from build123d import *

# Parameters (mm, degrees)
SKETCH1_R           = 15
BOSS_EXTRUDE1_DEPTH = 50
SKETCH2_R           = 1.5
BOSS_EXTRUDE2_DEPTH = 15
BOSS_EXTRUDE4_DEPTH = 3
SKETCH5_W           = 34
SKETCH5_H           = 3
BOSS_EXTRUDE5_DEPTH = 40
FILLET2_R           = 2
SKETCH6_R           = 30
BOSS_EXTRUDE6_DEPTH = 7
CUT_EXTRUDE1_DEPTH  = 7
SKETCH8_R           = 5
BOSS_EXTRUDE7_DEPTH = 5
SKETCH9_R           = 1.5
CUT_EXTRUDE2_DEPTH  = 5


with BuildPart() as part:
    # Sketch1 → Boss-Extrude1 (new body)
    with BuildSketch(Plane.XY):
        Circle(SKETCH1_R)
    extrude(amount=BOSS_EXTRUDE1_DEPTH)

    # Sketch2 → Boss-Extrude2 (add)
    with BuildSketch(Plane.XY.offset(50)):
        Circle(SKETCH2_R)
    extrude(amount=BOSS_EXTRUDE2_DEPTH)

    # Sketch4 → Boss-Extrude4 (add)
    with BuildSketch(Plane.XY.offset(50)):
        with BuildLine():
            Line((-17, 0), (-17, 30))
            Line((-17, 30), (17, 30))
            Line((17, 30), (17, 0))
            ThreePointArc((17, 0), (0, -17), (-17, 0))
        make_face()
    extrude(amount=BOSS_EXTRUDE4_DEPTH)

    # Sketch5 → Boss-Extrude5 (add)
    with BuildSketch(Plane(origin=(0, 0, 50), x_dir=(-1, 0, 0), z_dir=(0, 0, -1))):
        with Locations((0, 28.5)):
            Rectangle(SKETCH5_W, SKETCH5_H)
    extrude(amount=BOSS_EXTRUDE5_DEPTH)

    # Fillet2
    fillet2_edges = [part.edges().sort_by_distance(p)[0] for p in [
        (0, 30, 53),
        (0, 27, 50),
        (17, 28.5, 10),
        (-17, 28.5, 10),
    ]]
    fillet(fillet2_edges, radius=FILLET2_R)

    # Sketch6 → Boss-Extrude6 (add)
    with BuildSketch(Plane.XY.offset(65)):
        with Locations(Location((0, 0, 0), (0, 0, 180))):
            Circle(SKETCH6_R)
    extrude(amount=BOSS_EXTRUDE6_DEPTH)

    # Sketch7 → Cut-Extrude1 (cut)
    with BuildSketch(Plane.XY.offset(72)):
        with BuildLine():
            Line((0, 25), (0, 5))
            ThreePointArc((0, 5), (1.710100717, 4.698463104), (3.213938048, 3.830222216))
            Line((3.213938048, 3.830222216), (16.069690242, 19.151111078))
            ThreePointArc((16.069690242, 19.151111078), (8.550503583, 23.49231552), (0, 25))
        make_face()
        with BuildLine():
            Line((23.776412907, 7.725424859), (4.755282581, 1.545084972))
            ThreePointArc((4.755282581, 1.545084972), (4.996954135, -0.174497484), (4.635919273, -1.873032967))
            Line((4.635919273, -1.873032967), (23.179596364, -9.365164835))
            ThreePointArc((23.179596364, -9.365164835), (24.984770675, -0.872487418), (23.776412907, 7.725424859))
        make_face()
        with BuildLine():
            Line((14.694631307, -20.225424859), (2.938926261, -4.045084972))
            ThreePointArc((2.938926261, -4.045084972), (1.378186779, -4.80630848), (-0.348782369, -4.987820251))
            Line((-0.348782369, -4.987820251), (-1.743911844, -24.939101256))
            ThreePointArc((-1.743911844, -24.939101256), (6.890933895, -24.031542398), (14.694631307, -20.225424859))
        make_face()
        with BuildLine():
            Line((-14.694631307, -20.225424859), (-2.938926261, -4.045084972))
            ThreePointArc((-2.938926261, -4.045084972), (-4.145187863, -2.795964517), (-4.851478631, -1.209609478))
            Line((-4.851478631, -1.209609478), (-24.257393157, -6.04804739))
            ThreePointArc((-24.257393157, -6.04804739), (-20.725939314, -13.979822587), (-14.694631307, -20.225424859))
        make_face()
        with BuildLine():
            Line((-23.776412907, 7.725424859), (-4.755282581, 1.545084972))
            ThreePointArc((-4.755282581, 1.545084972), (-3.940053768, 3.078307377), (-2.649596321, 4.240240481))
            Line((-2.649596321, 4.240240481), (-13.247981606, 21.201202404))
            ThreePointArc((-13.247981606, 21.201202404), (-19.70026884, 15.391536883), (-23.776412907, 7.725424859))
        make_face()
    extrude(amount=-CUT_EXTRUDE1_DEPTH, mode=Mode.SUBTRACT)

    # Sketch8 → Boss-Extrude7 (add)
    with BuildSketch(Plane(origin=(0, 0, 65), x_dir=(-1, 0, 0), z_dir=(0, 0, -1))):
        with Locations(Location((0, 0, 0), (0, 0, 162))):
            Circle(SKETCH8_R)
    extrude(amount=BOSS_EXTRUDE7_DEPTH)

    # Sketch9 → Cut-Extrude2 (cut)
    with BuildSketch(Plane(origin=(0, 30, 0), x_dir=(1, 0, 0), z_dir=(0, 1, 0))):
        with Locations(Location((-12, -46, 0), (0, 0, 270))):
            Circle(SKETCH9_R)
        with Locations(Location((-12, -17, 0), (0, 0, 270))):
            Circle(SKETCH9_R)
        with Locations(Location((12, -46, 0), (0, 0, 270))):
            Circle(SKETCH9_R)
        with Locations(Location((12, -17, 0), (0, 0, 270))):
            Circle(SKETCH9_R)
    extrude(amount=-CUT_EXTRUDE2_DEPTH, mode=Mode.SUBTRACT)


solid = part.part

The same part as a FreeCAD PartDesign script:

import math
import FreeCAD as App
import Part
import Sketcher
Q = App.Units.Quantity


def edges_at(feature, points):
    """Names of the edges that pass closest to the given points."""
    edges = feature.Shape.Edges
    near = lambda p: min(range(len(edges)), key=lambda i: edges[i].distToShape(Part.Vertex(*p))[0])
    return sorted({f"Edge{near(p) + 1}" for p in points})


def add_polygon(sketch, points):
    """Adds a closed chain of lines whose ends are joined by coincident constraints."""
    first, n = sketch.GeometryCount, len(points)
    for a, b in zip(points, points[1:] + points[:1]):
        sketch.addGeometry(Part.LineSegment(App.Vector(*a, 0), App.Vector(*b, 0)), False)
    for i in range(n):
        sketch.addConstraint(Sketcher.Constraint("Coincident", first + i, 2, first + (i + 1) % n, 1))

doc = App.newDocument("Part")
body = doc.addObject("PartDesign::Body", "Body")

# Sketch on XY plane
sketch1 = body.newObject("Sketcher::SketchObject", "Sketch")
sketch1.AttachmentSupport = (doc.getObject("XY_Plane"), [""])
sketch1.MapMode = "FlatFace"
sketch1.addGeometry(Part.Circle(App.Vector(0, 0, 0), App.Vector(0, 0, 1), 15), False)
sketch1.addConstraint([
    Sketcher.Constraint("Coincident", 0, 3, -1, 1),
    Sketcher.Constraint("Diameter", 0, Q("30 mm")),
])
pad1 = body.newObject("PartDesign::Pad", "Pad")
pad1.Profile = sketch1
pad1.Length = 50

# Sketch on XY plane
sketch2 = body.newObject("Sketcher::SketchObject", "Sketch001")
sketch2.AttachmentSupport = (doc.getObject("XY_Plane"), [""])
sketch2.MapMode = "FlatFace"
sketch2.AttachmentOffset = App.Placement(App.Vector(0, 0, 50), App.Rotation())
sketch2.addGeometry(Part.Circle(App.Vector(0, 0, 0), App.Vector(0, 0, 1), 1.5), False)
sketch2.addConstraint([
    Sketcher.Constraint("Coincident", 0, 3, -1, 1),
    Sketcher.Constraint("Diameter", 0, Q("3 mm")),
])
pad2 = body.newObject("PartDesign::Pad", "Pad001")
pad2.Profile = sketch2
pad2.Length = 15

# Sketch on XY plane
sketch3 = body.newObject("Sketcher::SketchObject", "Sketch002")
sketch3.AttachmentSupport = (doc.getObject("XY_Plane"), [""])
sketch3.MapMode = "FlatFace"
sketch3.AttachmentOffset = App.Placement(App.Vector(0, 0, 50), App.Rotation())
sketch3.addGeometry([
    Part.LineSegment(App.Vector(-17, 30, 0), App.Vector(-17, 0, 0)),
    Part.ArcOfCircle(Part.Circle(App.Vector(0, 0, 0), App.Vector(0, 0, 1), 17), math.radians(180), math.radians(360)),
    Part.LineSegment(App.Vector(17, 0, 0), App.Vector(17, 30, 0)),
    Part.LineSegment(App.Vector(17, 30, 0), App.Vector(-17, 30, 0)),
], False)
sketch3.addConstraint([
    Sketcher.Constraint("Tangent", 0, 2, 1, 1),
    Sketcher.Constraint("Tangent", 1, 2, 2, 1),
    Sketcher.Constraint("Coincident", 2, 2, 3, 1),
    Sketcher.Constraint("Coincident", 3, 2, 0, 1),
    Sketcher.Constraint("Vertical", 0),
    Sketcher.Constraint("Vertical", 2),
    Sketcher.Constraint("Horizontal", 3),
    Sketcher.Constraint("Coincident", 1, 3, -1, 1),
    Sketcher.Constraint("Radius", 1, Q("17 mm")),
    Sketcher.Constraint("DistanceY", 0, 2, 0, 1, Q("30 mm")),
])
pad3 = body.newObject("PartDesign::Pad", "Pad002")
pad3.Profile = sketch3
pad3.Length = 3

# Sketch on XY plane
sketch4 = body.newObject("Sketcher::SketchObject", "Sketch003")
sketch4.AttachmentSupport = (doc.getObject("XY_Plane"), [""])
sketch4.MapMode = "FlatFace"
sketch4.AttachmentOffset = App.Placement(App.Vector(0, 0, 50), App.Rotation())
add_polygon(sketch4, [(17, 30), (17, 27), (-17, 27), (-17, 30)])  # lines 0-3
sketch4.addConstraint([
    Sketcher.Constraint("Vertical", 0),
    Sketcher.Constraint("Horizontal", 1),
    Sketcher.Constraint("Vertical", 2),
    Sketcher.Constraint("Horizontal", 3),
    Sketcher.Constraint("DistanceX", 1, 2, 1, 1, Q("34 mm")),
    Sketcher.Constraint("DistanceY", 0, 2, 0, 1, Q("3 mm")),
    Sketcher.Constraint("DistanceX", -1, 1, 0, 2, Q("17 mm")),
    Sketcher.Constraint("DistanceY", -1, 1, 0, 2, Q("27 mm")),
])
pad4 = body.newObject("PartDesign::Pad", "Pad003")
pad4.Profile = sketch4
pad4.Length = 40
pad4.Reversed = True
doc.recompute()

fillet = body.newObject("PartDesign::Fillet", "Fillet")
fillet.Base = (pad4, edges_at(pad4, [
    (0, 30, 53),
    (0, 27, 50),
    (17, 28.5, 10),
    (-17, 28.5, 10),
]))
fillet.Radius = 2

# Sketch on XY plane
sketch5 = body.newObject("Sketcher::SketchObject", "Sketch004")
sketch5.AttachmentSupport = (doc.getObject("XY_Plane"), [""])
sketch5.MapMode = "FlatFace"
sketch5.AttachmentOffset = App.Placement(App.Vector(0, 0, 65), App.Rotation())
sketch5.addGeometry(Part.Circle(App.Vector(0, 0, 0), App.Vector(0, 0, 1), 30), False)
sketch5.addConstraint([
    Sketcher.Constraint("Coincident", 0, 3, -1, 1),
    Sketcher.Constraint("Diameter", 0, Q("60 mm")),
])
pad5 = body.newObject("PartDesign::Pad", "Pad004")
pad5.Profile = sketch5
pad5.Length = 7

# Sketch on XY plane
sketch6 = body.newObject("Sketcher::SketchObject", "Sketch005")
sketch6.AttachmentSupport = (doc.getObject("XY_Plane"), [""])
sketch6.MapMode = "FlatFace"
sketch6.AttachmentOffset = App.Placement(App.Vector(0, 0, 72), App.Rotation())
sketch6.addGeometry([
    Part.LineSegment(App.Vector(0, 25, 0), App.Vector(0, 5, 0)),  # 0
    Part.ArcOfCircle(Part.Circle(App.Vector(0, 0, 0), App.Vector(0, 0, 1), 5), math.radians(50), math.radians(90)),  # 1
    Part.LineSegment(App.Vector(3.213938, 3.830222, 0), App.Vector(16.06969, 19.151111, 0)),  # 2
    Part.ArcOfCircle(Part.Circle(App.Vector(0, 0, 0), App.Vector(0, 0, 1), 25), math.radians(50), math.radians(90)),  # 3
    Part.LineSegment(App.Vector(23.776413, 7.725425, 0), App.Vector(4.755283, 1.545085, 0)),  # 4
    Part.ArcOfCircle(Part.Circle(App.Vector(0, 0, 0), App.Vector(0, 0, 1), 5), math.radians(-22), math.radians(18)),  # 5
    Part.LineSegment(App.Vector(4.635919, -1.873033, 0), App.Vector(23.179596, -9.365165, 0)),  # 6
    Part.ArcOfCircle(Part.Circle(App.Vector(0, 0, 0), App.Vector(0, 0, 1), 25), math.radians(-22), math.radians(18)),  # 7
    Part.LineSegment(App.Vector(14.694631, -20.225425, 0), App.Vector(2.938926, -4.045085, 0)),  # 8
    Part.ArcOfCircle(Part.Circle(App.Vector(0, 0, 0), App.Vector(0, 0, 1), 5), math.radians(-94), math.radians(-54)),  # 9
    Part.LineSegment(App.Vector(-0.348782, -4.98782, 0), App.Vector(-1.743912, -24.939101, 0)),  # 10
    Part.ArcOfCircle(Part.Circle(App.Vector(0, 0, 0), App.Vector(0, 0, 1), 25), math.radians(-94), math.radians(-54)),  # 11
    Part.LineSegment(App.Vector(-14.694631, -20.225425, 0), App.Vector(-2.938926, -4.045085, 0)),  # 12
    Part.ArcOfCircle(Part.Circle(App.Vector(0, 0, 0), App.Vector(0, 0, 1), 5), math.radians(-166), math.radians(-126)),  # 13
    Part.LineSegment(App.Vector(-4.851479, -1.209609, 0), App.Vector(-24.257393, -6.048047, 0)),  # 14
    Part.ArcOfCircle(Part.Circle(App.Vector(0, 0, 0), App.Vector(0, 0, 1), 25), math.radians(-166), math.radians(-126)),  # 15
    Part.LineSegment(App.Vector(-23.776413, 7.725425, 0), App.Vector(-4.755283, 1.545085, 0)),  # 16
    Part.ArcOfCircle(Part.Circle(App.Vector(0, 0, 0), App.Vector(0, 0, 1), 5), math.radians(122), math.radians(162)),  # 17
    Part.LineSegment(App.Vector(-2.649596, 4.24024, 0), App.Vector(-13.247982, 21.201202, 0)),  # 18
    Part.ArcOfCircle(Part.Circle(App.Vector(0, 0, 0), App.Vector(0, 0, 1), 25), math.radians(122), math.radians(162)),  # 19
], False)
sketch6.addConstraint([
    Sketcher.Constraint("Coincident", 0, 2, 1, 2),
    Sketcher.Constraint("Coincident", 1, 1, 2, 1),
    Sketcher.Constraint("Coincident", 2, 2, 3, 1),
    Sketcher.Constraint("Coincident", 3, 2, 0, 1),
    Sketcher.Constraint("Coincident", 4, 2, 5, 2),
    Sketcher.Constraint("Coincident", 5, 1, 6, 1),
    Sketcher.Constraint("Coincident", 6, 2, 7, 1),
    Sketcher.Constraint("Coincident", 7, 2, 4, 1),
    Sketcher.Constraint("Coincident", 8, 2, 9, 2),
    Sketcher.Constraint("Coincident", 9, 1, 10, 1),
    Sketcher.Constraint("Coincident", 10, 2, 11, 1),
    Sketcher.Constraint("Coincident", 11, 2, 8, 1),
    Sketcher.Constraint("Coincident", 12, 2, 13, 2),
    Sketcher.Constraint("Coincident", 13, 1, 14, 1),
    Sketcher.Constraint("Coincident", 14, 2, 15, 1),
    Sketcher.Constraint("Coincident", 15, 2, 12, 1),
    Sketcher.Constraint("Coincident", 16, 2, 17, 2),
    Sketcher.Constraint("Coincident", 17, 1, 18, 1),
    Sketcher.Constraint("Coincident", 18, 2, 19, 1),
    Sketcher.Constraint("Coincident", 19, 2, 16, 1),
    Sketcher.Constraint("Vertical", 0),
    Sketcher.Constraint("Coincident", 1, 3, -1, 1),
    Sketcher.Constraint("Coincident", 3, 3, -1, 1),
    Sketcher.Constraint("Coincident", 5, 3, -1, 1),
    Sketcher.Constraint("Coincident", 7, 3, -1, 1),
    Sketcher.Constraint("Coincident", 9, 3, -1, 1),
    Sketcher.Constraint("Coincident", 11, 3, -1, 1),
    Sketcher.Constraint("Coincident", 13, 3, -1, 1),
    Sketcher.Constraint("Coincident", 15, 3, -1, 1),
    Sketcher.Constraint("Coincident", 17, 3, -1, 1),
    Sketcher.Constraint("Coincident", 19, 3, -1, 1),
    Sketcher.Constraint("Equal", 1, 5),
    Sketcher.Constraint("Equal", 3, 7),
    Sketcher.Constraint("Equal", 5, 9),
    Sketcher.Constraint("Equal", 7, 11),
    Sketcher.Constraint("Equal", 9, 13),
    Sketcher.Constraint("Equal", 11, 15),
    Sketcher.Constraint("Equal", 13, 17),
    Sketcher.Constraint("Equal", 15, 19),
    Sketcher.Constraint("PointOnObject", 0, 2, -2),
    Sketcher.Constraint("Horizontal", 8, 2, 12, 2),
    Sketcher.Constraint("Horizontal", 11, 2, 15, 2),
    Sketcher.Constraint("Horizontal", 4, 2, 16, 2),
    Sketcher.Constraint("Horizontal", 7, 2, 19, 2),
    Sketcher.Constraint("Radius", 1, Q("5 mm")),
    Sketcher.Constraint("Radius", 3, Q("25 mm")),
    Sketcher.Constraint("Angle", 2, Q("50 deg")),
    Sketcher.Constraint("Angle", 4, Q("-162 deg")),
    Sketcher.Constraint("Angle", 6, Q("-22 deg")),
    Sketcher.Constraint("Angle", 8, Q("126 deg")),
    Sketcher.Constraint("Angle", 10, Q("-94 deg")),
    Sketcher.Constraint("Angle", 14, Q("-166 deg")),
    Sketcher.Constraint("Angle", 18, Q("122 deg")),
    Sketcher.Constraint("DistanceY", 10, 2, -1, 1, Q("24.939101 mm")),
    Sketcher.Constraint("DistanceX", 18, 2, 16, 2, Q("8.492699 mm")),
    Sketcher.Constraint("DistanceX", -1, 1, 1, 1, Q("3.213938 mm")),
    Sketcher.Constraint("DistanceX", -1, 1, 5, 1, Q("4.635919 mm")),
    Sketcher.Constraint("DistanceX", -1, 1, 11, 2, Q("14.694631 mm")),
    Sketcher.Constraint("DistanceX", 13, 1, -1, 1, Q("4.851479 mm")),
    Sketcher.Constraint("DistanceY", -1, 1, 17, 1, Q("4.24024 mm")),
])
pocket1 = body.newObject("PartDesign::Pocket", "Pocket")
pocket1.Profile = sketch6
pocket1.Length = 7

# Sketch on XY plane
sketch7 = body.newObject("Sketcher::SketchObject", "Sketch006")
sketch7.AttachmentSupport = (doc.getObject("XY_Plane"), [""])
sketch7.MapMode = "FlatFace"
sketch7.AttachmentOffset = App.Placement(App.Vector(0, 0, 65), App.Rotation())
sketch7.addGeometry(Part.Circle(App.Vector(0, 0, 0), App.Vector(0, 0, 1), 5), False)
sketch7.addConstraint([
    Sketcher.Constraint("Coincident", 0, 3, -1, 1),
    Sketcher.Constraint("Diameter", 0, Q("10 mm")),
])
pad6 = body.newObject("PartDesign::Pad", "Pad005")
pad6.Profile = sketch7
pad6.Length = 5
pad6.Reversed = True

# Sketch on XZ plane
sketch8 = body.newObject("Sketcher::SketchObject", "Sketch007")
sketch8.AttachmentSupport = (doc.getObject("XZ_Plane"), [""])
sketch8.MapMode = "FlatFace"
sketch8.AttachmentOffset = App.Placement(App.Vector(0, 0, -30), App.Rotation())
sketch8.addGeometry([
    Part.Circle(App.Vector(-12, 46, 0), App.Vector(0, 0, 1), 1.5),
    Part.Circle(App.Vector(-12, 17, 0), App.Vector(0, 0, 1), 1.5),
    Part.Circle(App.Vector(12, 46, 0), App.Vector(0, 0, 1), 1.5),
    Part.Circle(App.Vector(12, 17, 0), App.Vector(0, 0, 1), 1.5),
], False)
sketch8.addConstraint([
    Sketcher.Constraint("Equal", 0, 1),
    Sketcher.Constraint("Equal", 1, 2),
    Sketcher.Constraint("Equal", 2, 3),
    Sketcher.Constraint("Symmetric", 0, 3, 2, 3, -2),
    Sketcher.Constraint("Symmetric", 1, 3, 3, 3, -2),
    Sketcher.Constraint("Vertical", 0, 3, 1, 3),
    Sketcher.Constraint("Diameter", 0, Q("3 mm")),
    Sketcher.Constraint("DistanceX", 0, 3, -1, 1, Q("12 mm")),
    Sketcher.Constraint("DistanceY", -1, 1, 0, 3, Q("46 mm")),
    Sketcher.Constraint("DistanceY", -1, 1, 1, 3, Q("17 mm")),
])
pocket2 = body.newObject("PartDesign::Pocket", "Pocket001")
pocket2.Profile = sketch8
pocket2.Length = 5
pocket2.Reversed = True

doc.recompute()
